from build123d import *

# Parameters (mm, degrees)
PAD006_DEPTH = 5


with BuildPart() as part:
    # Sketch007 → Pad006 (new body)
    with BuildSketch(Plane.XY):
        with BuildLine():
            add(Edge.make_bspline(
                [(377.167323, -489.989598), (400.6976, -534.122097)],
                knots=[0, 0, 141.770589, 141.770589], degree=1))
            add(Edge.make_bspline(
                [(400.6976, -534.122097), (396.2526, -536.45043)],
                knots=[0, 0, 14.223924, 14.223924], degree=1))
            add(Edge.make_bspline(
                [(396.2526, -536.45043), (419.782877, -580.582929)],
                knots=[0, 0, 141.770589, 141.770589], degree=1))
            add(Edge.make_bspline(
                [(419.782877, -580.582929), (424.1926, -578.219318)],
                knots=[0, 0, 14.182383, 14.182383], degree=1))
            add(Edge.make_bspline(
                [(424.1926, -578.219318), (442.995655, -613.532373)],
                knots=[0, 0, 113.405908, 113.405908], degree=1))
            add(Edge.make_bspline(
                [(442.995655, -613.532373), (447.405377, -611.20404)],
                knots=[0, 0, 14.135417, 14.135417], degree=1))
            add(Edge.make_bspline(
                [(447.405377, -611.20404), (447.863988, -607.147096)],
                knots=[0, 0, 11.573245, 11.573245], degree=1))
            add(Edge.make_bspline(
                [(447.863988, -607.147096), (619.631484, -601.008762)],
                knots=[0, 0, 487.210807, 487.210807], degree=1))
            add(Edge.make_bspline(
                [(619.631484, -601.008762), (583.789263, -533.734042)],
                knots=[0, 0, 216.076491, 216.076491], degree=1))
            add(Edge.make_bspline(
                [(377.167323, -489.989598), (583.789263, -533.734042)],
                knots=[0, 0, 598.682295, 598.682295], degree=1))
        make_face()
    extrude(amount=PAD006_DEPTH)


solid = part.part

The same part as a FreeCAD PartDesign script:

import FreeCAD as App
import Part
import Sketcher

doc = App.newDocument("Part")
params = doc.addObject("Spreadsheet::Sheet", "Params")
for row, (alias, value) in enumerate([
    ("pad1_length", "5 mm"),
], start=1):
    params.set(f"A{row}", alias)
    params.set(f"B{row}", "=" + value)
    params.setAlias(f"B{row}", alias)

body = doc.addObject("PartDesign::Body", "Body")

sketch1 = doc.addObject("Sketcher::SketchObject", "Sketch")
body.addObject(sketch1)
sketch1.AttachmentSupport = (doc.XY_Plane, [""])
sketch1.MapMode = "FlatFace"
sketch1.addGeometry([
    Part.BSplineCurve([App.Vector(377.167323, -489.989598, 0), App.Vector(400.6976, -534.122097, 0)], [2, 2], [0, 141.770589], False, 1, [1, 1], False),
    Part.BSplineCurve([App.Vector(400.6976, -534.122097, 0), App.Vector(396.2526, -536.45043, 0)], [2, 2], [0, 14.223924], False, 1, [1, 1], False),
    Part.BSplineCurve([App.Vector(396.2526, -536.45043, 0), App.Vector(419.782877, -580.582929, 0)], [2, 2], [0, 141.770589], False, 1, [1, 1], False),
    Part.BSplineCurve([App.Vector(419.782877, -580.582929, 0), App.Vector(424.1926, -578.219318, 0)], [2, 2], [0, 14.182383], False, 1, [1, 1], False),
    Part.BSplineCurve([App.Vector(424.1926, -578.219318, 0), App.Vector(442.995655, -613.532373, 0)], [2, 2], [0, 113.405908], False, 1, [1, 1], False),
    Part.BSplineCurve([App.Vector(442.995655, -613.532373, 0), App.Vector(447.405377, -611.20404, 0)], [2, 2], [0, 14.135417], False, 1, [1, 1], False),
    Part.BSplineCurve([App.Vector(447.405377, -611.20404, 0), App.Vector(447.863988, -607.147096, 0)], [2, 2], [0, 11.573245], False, 1, [1, 1], False),
    Part.BSplineCurve([App.Vector(447.863988, -607.147096, 0), App.Vector(619.631484, -601.008762, 0)], [2, 2], [0, 487.210807], False, 1, [1, 1], False),
    Part.BSplineCurve([App.Vector(619.631484, -601.008762, 0), App.Vector(583.789263, -533.734042, 0)], [2, 2], [0, 216.076491], False, 1, [1, 1], False),
    Part.BSplineCurve([App.Vector(377.167323, -489.989598, 0), App.Vector(583.789263, -533.734042, 0)], [2, 2], [0, 598.682295], False, 1, [1, 1], False),
], False)
sketch1.addConstraint([
    Sketcher.Constraint("Block", 0),
    Sketcher.Constraint("Block", 1),
    Sketcher.Constraint("Block", 2),
    Sketcher.Constraint("Block", 3),
    Sketcher.Constraint("Block", 4),
    Sketcher.Constraint("Block", 5),
    Sketcher.Constraint("Block", 6),
    Sketcher.Constraint("Block", 7),
    Sketcher.Constraint("Block", 8),
    Sketcher.Constraint("Block", 9),
])
pad1 = doc.addObject("PartDesign::Pad", "Pad")
body.addObject(pad1)
pad1.Profile = sketch1
pad1.setExpression("Length", "Params.pad1_length")

doc.recompute()
